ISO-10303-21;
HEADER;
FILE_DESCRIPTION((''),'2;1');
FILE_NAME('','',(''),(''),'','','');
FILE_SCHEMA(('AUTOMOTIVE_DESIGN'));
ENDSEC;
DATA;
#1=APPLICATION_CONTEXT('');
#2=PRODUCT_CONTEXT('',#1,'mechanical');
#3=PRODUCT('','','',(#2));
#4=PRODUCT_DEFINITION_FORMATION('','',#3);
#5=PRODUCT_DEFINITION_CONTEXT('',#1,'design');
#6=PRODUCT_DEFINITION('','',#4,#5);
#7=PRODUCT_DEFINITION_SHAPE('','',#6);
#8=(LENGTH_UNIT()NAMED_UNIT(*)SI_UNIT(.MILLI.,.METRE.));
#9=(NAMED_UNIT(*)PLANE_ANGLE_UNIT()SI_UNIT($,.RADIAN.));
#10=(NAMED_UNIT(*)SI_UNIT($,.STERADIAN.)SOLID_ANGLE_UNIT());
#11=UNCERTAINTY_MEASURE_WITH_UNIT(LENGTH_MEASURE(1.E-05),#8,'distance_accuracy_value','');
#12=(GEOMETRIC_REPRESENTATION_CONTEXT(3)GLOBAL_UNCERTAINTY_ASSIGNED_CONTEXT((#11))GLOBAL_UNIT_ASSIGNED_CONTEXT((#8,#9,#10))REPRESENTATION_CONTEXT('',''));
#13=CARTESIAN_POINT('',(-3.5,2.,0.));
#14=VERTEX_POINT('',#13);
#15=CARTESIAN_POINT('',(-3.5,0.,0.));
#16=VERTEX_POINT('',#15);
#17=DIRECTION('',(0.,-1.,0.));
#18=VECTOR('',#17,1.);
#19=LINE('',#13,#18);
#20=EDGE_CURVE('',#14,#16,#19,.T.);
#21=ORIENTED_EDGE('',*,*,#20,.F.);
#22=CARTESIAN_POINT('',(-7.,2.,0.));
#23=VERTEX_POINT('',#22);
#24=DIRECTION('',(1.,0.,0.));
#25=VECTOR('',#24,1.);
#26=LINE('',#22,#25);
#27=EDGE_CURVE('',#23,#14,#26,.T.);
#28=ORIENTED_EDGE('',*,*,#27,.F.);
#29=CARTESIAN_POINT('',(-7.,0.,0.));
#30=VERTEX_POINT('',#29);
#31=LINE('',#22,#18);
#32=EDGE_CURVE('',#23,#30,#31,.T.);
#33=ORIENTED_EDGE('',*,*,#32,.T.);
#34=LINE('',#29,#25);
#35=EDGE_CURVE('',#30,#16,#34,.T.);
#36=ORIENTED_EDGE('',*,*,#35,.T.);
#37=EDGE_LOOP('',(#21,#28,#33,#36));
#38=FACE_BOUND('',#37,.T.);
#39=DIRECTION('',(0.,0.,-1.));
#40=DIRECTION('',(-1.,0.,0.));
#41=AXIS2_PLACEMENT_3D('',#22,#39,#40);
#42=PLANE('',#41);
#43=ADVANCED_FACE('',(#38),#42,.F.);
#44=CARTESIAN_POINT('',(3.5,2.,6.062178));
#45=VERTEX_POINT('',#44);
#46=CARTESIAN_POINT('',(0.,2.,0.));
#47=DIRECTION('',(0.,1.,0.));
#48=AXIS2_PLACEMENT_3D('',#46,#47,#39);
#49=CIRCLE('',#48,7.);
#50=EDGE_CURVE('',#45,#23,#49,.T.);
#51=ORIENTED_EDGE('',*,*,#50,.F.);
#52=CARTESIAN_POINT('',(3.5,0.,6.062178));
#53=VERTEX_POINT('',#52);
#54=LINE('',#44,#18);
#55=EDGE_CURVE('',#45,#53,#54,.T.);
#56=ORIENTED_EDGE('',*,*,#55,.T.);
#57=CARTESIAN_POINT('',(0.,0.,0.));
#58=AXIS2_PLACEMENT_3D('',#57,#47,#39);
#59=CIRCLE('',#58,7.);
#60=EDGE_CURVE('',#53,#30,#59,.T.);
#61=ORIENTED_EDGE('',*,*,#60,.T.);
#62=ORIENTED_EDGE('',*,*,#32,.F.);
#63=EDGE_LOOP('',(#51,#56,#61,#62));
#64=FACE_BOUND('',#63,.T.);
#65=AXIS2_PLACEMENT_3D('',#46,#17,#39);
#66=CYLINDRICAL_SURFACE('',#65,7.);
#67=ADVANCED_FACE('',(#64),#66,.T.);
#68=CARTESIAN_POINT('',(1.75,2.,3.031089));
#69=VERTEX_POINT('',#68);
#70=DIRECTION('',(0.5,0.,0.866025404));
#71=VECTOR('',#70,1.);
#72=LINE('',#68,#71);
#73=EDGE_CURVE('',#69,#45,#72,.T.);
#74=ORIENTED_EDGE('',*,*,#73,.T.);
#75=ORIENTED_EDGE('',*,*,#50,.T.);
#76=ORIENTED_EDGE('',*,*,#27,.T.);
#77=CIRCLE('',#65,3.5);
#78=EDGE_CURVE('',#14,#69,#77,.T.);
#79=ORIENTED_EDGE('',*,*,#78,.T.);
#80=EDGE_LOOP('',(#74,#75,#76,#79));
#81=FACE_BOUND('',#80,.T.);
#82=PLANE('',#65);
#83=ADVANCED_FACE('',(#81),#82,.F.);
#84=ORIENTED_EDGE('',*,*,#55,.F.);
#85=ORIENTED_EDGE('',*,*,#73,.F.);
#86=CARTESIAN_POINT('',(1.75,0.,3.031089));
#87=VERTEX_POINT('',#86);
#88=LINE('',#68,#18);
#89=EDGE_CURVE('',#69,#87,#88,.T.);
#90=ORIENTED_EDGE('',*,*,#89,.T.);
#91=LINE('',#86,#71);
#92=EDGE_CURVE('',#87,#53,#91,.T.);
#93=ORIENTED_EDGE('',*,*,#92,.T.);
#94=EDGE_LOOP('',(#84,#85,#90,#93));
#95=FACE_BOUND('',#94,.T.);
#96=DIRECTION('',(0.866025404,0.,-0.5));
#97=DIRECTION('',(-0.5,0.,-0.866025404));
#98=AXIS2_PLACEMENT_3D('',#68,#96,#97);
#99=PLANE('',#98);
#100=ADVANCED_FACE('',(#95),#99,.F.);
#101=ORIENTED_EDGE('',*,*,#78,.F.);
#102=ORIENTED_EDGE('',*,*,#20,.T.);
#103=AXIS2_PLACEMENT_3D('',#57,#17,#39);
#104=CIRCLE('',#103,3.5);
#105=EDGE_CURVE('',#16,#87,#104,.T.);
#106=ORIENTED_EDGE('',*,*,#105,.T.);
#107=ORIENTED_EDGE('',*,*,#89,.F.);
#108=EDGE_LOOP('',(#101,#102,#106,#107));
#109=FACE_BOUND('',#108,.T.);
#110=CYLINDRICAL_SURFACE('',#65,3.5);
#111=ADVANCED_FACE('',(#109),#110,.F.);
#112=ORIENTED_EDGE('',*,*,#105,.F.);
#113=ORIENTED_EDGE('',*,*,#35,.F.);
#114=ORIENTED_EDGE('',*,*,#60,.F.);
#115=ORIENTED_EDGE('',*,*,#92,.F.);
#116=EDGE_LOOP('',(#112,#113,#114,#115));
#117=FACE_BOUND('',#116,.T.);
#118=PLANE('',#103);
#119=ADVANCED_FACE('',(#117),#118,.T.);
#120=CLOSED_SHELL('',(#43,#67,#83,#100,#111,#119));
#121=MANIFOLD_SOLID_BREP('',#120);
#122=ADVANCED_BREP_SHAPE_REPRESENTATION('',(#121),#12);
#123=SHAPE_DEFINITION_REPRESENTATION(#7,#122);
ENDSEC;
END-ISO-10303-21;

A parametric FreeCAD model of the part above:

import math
import FreeCAD as App
import Part
import Sketcher
from FreeCAD import Vector
Q = App.Units.Quantity

doc = App.newDocument("Part")
params = doc.addObject("Spreadsheet::Sheet", "Params")
for row, (alias, value) in enumerate([
    ("sketch1_radius", "7 mm"),
    ("sketch1_radius2", "3.5 mm"),
    ("pad1_length", "2 mm"),
], start=1):
    params.set(f"A{row}", alias)
    params.set(f"B{row}", "=" + value)
    params.setAlias(f"B{row}", alias)

body = doc.addObject("PartDesign::Body", "Body")

sketch1 = body.newObject("Sketcher::SketchObject", "Sketch")
sketch1.AttachmentSupport = (doc.getObject("XZ_Plane"), [""])
sketch1.MapMode = "FlatFace"
sketch1.addGeometry([
    Part.LineSegment(Vector(-7, 0, 0), Vector(-3.5, 0, 0)),
    Part.ArcOfCircle(Part.Circle(Vector(0, 0, 0), Vector(0, 0, 1), 3.5), math.radians(180), math.radians(420)),
    Part.LineSegment(Vector(1.8, 3, 0), Vector(3.5, 6.1, 0)),
    Part.ArcOfCircle(Part.Circle(Vector(0, 0, 0), Vector(0, 0, 1), 7), math.radians(180), math.radians(420)),
], False)
sketch1.addConstraint([
    Sketcher.Constraint("Coincident", 0, 2, 1, 1),
    Sketcher.Constraint("Coincident", 1, 2, 2, 1),
    Sketcher.Constraint("Coincident", 2, 2, 3, 2),
    Sketcher.Constraint("Coincident", 3, 1, 0, 1),
    Sketcher.Constraint("Horizontal", 0),
    Sketcher.Constraint("Coincident", 1, 3, -1, 1),
    Sketcher.Constraint("Coincident", 3, 3, -1, 1),
    Sketcher.Constraint("PointOnObject", 0, 2, -1),
    Sketcher.Constraint("Radius", 3, Q("7 mm")),
    Sketcher.Constraint("Radius", 1, Q("3.5 mm")),
    Sketcher.Constraint("Angle", 2, Q("60 deg")),
    Sketcher.Constraint("DistanceX", 0, 2, 2, 2, Q("7 mm")),
])
sketch1.setExpression("Constraints[8]", "Params.sketch1_radius")
sketch1.setExpression("Constraints[9]", "Params.sketch1_radius2")
pad1 = body.newObject("PartDesign::Pad", "Pad")
pad1.Profile = sketch1
pad1.setExpression("Length", "Params.pad1_length")
pad1.Reversed = True

doc.recompute()
